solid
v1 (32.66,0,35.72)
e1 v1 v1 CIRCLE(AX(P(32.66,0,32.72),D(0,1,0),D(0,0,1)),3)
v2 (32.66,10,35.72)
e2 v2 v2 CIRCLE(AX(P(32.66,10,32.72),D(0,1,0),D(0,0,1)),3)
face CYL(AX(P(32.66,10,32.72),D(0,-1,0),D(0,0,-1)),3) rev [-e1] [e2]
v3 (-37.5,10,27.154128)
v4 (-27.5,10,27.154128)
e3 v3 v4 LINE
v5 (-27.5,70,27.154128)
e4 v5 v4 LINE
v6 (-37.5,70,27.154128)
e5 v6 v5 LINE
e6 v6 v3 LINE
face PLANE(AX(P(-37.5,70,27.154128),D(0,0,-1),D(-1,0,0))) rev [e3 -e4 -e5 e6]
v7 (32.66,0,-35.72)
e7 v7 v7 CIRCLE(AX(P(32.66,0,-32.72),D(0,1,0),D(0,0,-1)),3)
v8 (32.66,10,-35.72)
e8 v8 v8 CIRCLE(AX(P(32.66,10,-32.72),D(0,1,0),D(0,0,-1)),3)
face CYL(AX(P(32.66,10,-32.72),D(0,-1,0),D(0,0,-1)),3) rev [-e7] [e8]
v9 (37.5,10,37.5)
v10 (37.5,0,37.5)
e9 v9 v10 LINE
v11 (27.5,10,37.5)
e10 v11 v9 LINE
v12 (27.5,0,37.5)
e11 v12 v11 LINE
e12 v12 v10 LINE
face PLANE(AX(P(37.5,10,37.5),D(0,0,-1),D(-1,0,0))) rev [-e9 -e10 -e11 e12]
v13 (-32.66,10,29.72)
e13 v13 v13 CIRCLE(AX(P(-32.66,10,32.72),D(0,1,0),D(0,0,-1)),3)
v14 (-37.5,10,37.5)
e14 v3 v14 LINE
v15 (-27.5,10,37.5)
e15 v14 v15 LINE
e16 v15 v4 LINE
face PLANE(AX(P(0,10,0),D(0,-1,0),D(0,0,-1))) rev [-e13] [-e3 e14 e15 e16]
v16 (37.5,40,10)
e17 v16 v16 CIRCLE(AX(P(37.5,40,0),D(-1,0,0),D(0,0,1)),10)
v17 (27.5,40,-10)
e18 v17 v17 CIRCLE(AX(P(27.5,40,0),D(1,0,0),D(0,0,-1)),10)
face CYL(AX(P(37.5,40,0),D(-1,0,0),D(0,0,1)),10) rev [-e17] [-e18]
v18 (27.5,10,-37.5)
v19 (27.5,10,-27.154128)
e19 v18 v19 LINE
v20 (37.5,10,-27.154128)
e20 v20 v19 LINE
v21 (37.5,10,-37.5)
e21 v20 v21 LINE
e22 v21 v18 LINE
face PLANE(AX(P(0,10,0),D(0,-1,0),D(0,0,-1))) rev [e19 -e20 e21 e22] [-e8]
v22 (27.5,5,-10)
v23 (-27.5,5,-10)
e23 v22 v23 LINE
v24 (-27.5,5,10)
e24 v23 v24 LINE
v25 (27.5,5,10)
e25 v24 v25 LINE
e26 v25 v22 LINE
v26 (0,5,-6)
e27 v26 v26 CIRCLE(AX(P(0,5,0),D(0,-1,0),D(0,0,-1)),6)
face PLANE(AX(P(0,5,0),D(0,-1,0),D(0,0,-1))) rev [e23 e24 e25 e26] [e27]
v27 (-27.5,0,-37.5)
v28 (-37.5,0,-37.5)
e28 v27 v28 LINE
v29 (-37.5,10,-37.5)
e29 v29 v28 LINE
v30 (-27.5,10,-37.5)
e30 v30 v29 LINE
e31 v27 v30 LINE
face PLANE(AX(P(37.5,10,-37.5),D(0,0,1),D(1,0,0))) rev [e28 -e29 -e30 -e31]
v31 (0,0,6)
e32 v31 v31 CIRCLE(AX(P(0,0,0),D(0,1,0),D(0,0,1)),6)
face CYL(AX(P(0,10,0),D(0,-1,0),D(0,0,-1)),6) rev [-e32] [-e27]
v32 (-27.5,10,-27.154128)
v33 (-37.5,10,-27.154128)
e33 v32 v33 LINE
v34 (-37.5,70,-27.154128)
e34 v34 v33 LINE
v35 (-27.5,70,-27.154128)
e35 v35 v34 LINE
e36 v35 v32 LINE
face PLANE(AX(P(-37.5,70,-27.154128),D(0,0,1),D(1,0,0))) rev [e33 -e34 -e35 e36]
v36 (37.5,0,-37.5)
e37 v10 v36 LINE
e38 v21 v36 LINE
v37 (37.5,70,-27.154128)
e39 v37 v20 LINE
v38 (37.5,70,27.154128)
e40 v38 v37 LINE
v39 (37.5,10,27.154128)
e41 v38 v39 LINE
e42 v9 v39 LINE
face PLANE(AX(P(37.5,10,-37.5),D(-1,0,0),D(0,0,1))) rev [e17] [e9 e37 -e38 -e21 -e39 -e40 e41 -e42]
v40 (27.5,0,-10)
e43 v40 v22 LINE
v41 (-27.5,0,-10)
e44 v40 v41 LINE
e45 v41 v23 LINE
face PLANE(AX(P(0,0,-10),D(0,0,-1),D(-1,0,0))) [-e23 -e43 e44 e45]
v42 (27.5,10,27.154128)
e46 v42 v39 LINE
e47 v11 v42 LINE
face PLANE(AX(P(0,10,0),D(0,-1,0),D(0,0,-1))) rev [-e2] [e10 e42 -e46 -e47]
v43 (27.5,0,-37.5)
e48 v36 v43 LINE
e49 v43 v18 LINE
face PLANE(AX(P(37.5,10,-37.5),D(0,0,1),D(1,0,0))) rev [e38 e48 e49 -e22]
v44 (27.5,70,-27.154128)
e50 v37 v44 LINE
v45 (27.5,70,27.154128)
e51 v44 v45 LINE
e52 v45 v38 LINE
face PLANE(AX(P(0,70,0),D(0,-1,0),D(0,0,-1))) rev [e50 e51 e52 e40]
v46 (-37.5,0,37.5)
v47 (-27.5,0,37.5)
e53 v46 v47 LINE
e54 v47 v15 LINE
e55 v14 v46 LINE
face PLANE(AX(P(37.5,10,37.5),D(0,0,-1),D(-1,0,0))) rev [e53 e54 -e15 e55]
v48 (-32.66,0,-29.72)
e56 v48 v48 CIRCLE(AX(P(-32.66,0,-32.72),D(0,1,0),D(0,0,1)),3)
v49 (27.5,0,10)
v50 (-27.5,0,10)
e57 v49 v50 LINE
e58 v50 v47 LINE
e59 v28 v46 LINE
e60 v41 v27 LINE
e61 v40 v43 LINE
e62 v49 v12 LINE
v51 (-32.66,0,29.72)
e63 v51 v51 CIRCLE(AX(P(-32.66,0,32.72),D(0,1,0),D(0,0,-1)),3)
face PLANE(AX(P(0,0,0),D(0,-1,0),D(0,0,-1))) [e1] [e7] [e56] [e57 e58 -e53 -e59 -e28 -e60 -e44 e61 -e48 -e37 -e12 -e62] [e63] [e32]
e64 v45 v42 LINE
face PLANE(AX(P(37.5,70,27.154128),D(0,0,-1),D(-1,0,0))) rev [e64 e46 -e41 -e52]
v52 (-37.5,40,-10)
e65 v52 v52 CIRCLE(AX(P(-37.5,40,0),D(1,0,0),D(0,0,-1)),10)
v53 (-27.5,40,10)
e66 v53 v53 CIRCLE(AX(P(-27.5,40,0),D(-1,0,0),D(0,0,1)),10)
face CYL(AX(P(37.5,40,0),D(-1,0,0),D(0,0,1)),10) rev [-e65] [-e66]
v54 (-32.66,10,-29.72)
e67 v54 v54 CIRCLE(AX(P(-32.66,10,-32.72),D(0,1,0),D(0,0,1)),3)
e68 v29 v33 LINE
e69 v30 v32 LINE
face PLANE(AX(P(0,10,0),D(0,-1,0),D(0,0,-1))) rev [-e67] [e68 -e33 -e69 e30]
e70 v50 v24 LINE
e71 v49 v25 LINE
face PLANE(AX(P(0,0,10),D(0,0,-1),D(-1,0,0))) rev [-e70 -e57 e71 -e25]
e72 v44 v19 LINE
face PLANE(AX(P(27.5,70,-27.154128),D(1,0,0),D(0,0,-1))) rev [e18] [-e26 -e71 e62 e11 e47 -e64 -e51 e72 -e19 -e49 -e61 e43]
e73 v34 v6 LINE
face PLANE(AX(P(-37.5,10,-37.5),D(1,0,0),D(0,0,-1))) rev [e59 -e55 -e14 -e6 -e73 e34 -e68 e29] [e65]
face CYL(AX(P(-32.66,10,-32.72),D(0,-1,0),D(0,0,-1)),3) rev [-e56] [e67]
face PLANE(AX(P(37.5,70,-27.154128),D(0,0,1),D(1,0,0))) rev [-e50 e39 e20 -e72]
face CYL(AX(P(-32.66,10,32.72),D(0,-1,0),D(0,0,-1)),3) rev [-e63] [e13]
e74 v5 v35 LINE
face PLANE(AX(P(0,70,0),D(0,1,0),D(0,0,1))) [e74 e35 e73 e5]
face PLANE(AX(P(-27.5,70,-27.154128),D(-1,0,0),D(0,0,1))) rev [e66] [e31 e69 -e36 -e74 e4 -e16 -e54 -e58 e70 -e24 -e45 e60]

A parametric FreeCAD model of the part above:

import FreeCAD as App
import Part
import Sketcher

V = App.Vector
Q = App.Units.Quantity


def add_polygon(sketch, points):
    """Adds a closed chain of lines whose ends are joined by coincident constraints."""
    first, n = sketch.GeometryCount, len(points)
    for a, b in zip(points, points[1:] + points[:1]):
        sketch.addGeometry(Part.LineSegment(App.Vector(*a, 0), App.Vector(*b, 0)), False)
    for i in range(n):
        sketch.addConstraint(Sketcher.Constraint("Coincident", first + i, 2, first + (i + 1) % n, 1))

doc = App.newDocument("Part")
params = doc.addObject("Spreadsheet::Sheet", "Params")
for row, (alias, value) in enumerate([
    ("sketch1_diameter", "6 mm"),
    ("sketch1_diameter2", "12 mm"),
    ("sketch1_width", "75 mm"),
    ("pad1_length", "10 mm"),
    ("sketch2_width", "10 mm"),
    ("pad2_length", "60 mm"),
    ("sketch3_diameter", "20 mm"),
    ("sketch4_width", "55 mm"),
    ("sketch4_height", "27.5 mm"),
    ("sketch5_width", "55 mm"),
    ("sketch5_height", "20 mm"),
    ("pocket3_length", "5 mm"),
], start=1):
    params.set(f"A{row}", alias)
    params.set(f"B{row}", "=" + value)
    params.setAlias(f"B{row}", alias)

body = doc.addObject("PartDesign::Body", "Body")

sketch1 = doc.addObject("Sketcher::SketchObject", "Sketch")
body.addObject(sketch1)
sketch1.AttachmentSupport = (doc.XZ_Plane, [""])
sketch1.MapMode = "FlatFace"
add_polygon(sketch1, [(-37.5, -37.5), (-37.5, 37.5), (37.5, 37.5), (37.5, -37.5)])
sketch1.addGeometry(Part.Circle(V(-32.7, 32.7, 0), V(0, 0, 1), 3), False)
sketch1.addGeometry(Part.Circle(V(32.7, 32.7, 0), V(0, 0, 1), 3), False)
sketch1.addGeometry(Part.Circle(V(-32.7, -32.7, 0), V(0, 0, 1), 3), False)
sketch1.addGeometry(Part.Circle(V(0, 0, 0), V(0, 0, 1), 6), False)
sketch1.addGeometry(Part.Circle(V(32.7, -32.7, 0), V(0, 0, 1), 3), False)
sketch1.addConstraint(Sketcher.Constraint("Vertical", 0))
sketch1.addConstraint(Sketcher.Constraint("Horizontal", 1))
sketch1.addConstraint(Sketcher.Constraint("Vertical", 2))
sketch1.addConstraint(Sketcher.Constraint("Horizontal", 3))
sketch1.addConstraint(Sketcher.Constraint("Coincident", 7, 3, -1, 1))
sketch1.addConstraint(Sketcher.Constraint("Equal", 4, 5))
sketch1.addConstraint(Sketcher.Constraint("Equal", 5, 6))
sketch1.addConstraint(Sketcher.Constraint("Equal", 6, 8))
sketch1.addConstraint(Sketcher.Constraint("Symmetric", 5, 3, 6, 3, -1, 1))
sketch1.addConstraint(Sketcher.Constraint("Symmetric", 4, 3, 8, 3, -1, 1))
sketch1.addConstraint(Sketcher.Constraint("Symmetric", 0, 2, 2, 2, -1, 1))
sketch1.addConstraint(Sketcher.Constraint("Symmetric", 4, 3, 5, 3, -2))
sketch1.addConstraint(Sketcher.Constraint("Equal", 3, 0))
sketch1.addConstraint(Sketcher.Constraint("Diameter", 4, Q("6 mm")))
sketch1.addConstraint(Sketcher.Constraint("Diameter", 7, Q("12 mm")))
sketch1.addConstraint(Sketcher.Constraint("DistanceX", 1, 1, 1, 2, Q("75 mm")))
sketch1.addConstraint(Sketcher.Constraint("DistanceX", 4, 3, -1, 1, Q("32.66 mm")))
sketch1.addConstraint(Sketcher.Constraint("DistanceY", -1, 1, 4, 3, Q("32.72 mm")))
sketch1.setExpression("Constraints[17]", "Params.sketch1_diameter")
sketch1.setExpression("Constraints[18]", "Params.sketch1_diameter2")
sketch1.setExpression("Constraints[19]", "Params.sketch1_width")
pad1 = doc.addObject("PartDesign::Pad", "Pad")
body.addObject(pad1)
pad1.Profile = sketch1
pad1.setExpression("Length", "Params.pad1_length")
pad1.Reversed = True

sketch2 = doc.addObject("Sketcher::SketchObject", "Sketch001")
body.addObject(sketch2)
sketch2.AttachmentSupport = (doc.XZ_Plane, [""])
sketch2.MapMode = "FlatFace"
sketch2.AttachmentOffset = App.Placement(V(0, 0, -10), App.Rotation())
add_polygon(sketch2, [(-38, -27), (-38, 27), (-28, 27), (-28, -27)])
add_polygon(sketch2, [(28, -27), (28, 27), (38, 27), (38, -27)])
sketch2.addConstraint(Sketcher.Constraint("Vertical", 0))
sketch2.addConstraint(Sketcher.Constraint("Horizontal", 1))
sketch2.addConstraint(Sketcher.Constraint("Vertical", 2))
sketch2.addConstraint(Sketcher.Constraint("Horizontal", 3))
sketch2.addConstraint(Sketcher.Constraint("Vertical", 4))
sketch2.addConstraint(Sketcher.Constraint("Horizontal", 5))
sketch2.addConstraint(Sketcher.Constraint("Vertical", 6))
sketch2.addConstraint(Sketcher.Constraint("Horizontal", 7))
sketch2.addConstraint(Sketcher.Constraint("Symmetric", 2, 2, 4, 2, -1, 1))
sketch2.addConstraint(Sketcher.Constraint("Symmetric", 0, 2, 6, 2, -1, 1))
sketch2.addConstraint(Sketcher.Constraint("Horizontal", 1, 2, 4, 2))
sketch2.addConstraint(Sketcher.Constraint("DistanceX", 1, 1, 1, 2, Q("10 mm")))
sketch2.addConstraint(Sketcher.Constraint("DistanceX", 1, 2, 4, 2, Q("55 mm")))
sketch2.addConstraint(Sketcher.Constraint("DistanceY", 0, 1, 0, 2, Q("54.308256 mm")))
sketch2.setExpression("Constraints[19]", "Params.sketch2_width")
pad2 = doc.addObject("PartDesign::Pad", "Pad001")
body.addObject(pad2)
pad2.Profile = sketch2
pad2.setExpression("Length", "Params.pad2_length")
pad2.Reversed = True

sketch3 = doc.addObject("Sketcher::SketchObject", "Sketch002")
body.addObject(sketch3)
sketch3.AttachmentSupport = (doc.YZ_Plane, [""])
sketch3.MapMode = "FlatFace"
sketch3.AttachmentOffset = App.Placement(V(0, 0, -37.5), App.Rotation())
sketch3.addGeometry(Part.Circle(V(40, 0, 0), V(0, 0, 1), 10), False)
sketch3.addConstraint(Sketcher.Constraint("PointOnObject", 0, 3, -1))
sketch3.addConstraint(Sketcher.Constraint("Diameter", 0, Q("20 mm")))
sketch3.addConstraint(Sketcher.Constraint("DistanceX", -1, 1, 0, 3, Q("40 mm")))
sketch3.setExpression("Constraints[1]", "Params.sketch3_diameter")
pocket1 = doc.addObject("PartDesign::Pocket", "Pocket")
body.addObject(pocket1)
pocket1.Profile = sketch3
pocket1.Type = "ThroughAll"
pocket1.Midplane = True

sketch4 = doc.addObject("Sketcher::SketchObject", "Sketch003")
body.addObject(sketch4)
sketch4.AttachmentSupport = (doc.XZ_Plane, [""])
sketch4.MapMode = "FlatFace"
sketch4.AttachmentOffset = App.Placement(V(0, 0, -10), App.Rotation())
add_polygon(sketch4, [(-28, -10), (28, -10), (28, -38), (-28, -38)])
add_polygon(sketch4, [(28, 10), (-28, 10), (-28, 38), (28, 38)])
sketch4.addConstraint(Sketcher.Constraint("Horizontal", 0))
sketch4.addConstraint(Sketcher.Constraint("Vertical", 1))
sketch4.addConstraint(Sketcher.Constraint("Horizontal", 2))
sketch4.addConstraint(Sketcher.Constraint("Vertical", 3))
sketch4.addConstraint(Sketcher.Constraint("Horizontal", 4))
sketch4.addConstraint(Sketcher.Constraint("Vertical", 5))
sketch4.addConstraint(Sketcher.Constraint("Horizontal", 6))
sketch4.addConstraint(Sketcher.Constraint("Vertical", 7))
sketch4.addConstraint(Sketcher.Constraint("Symmetric", 0, 2, 4, 2, -1, 1))
sketch4.addConstraint(Sketcher.Constraint("Symmetric", 2, 2, 6, 2, -1, 1))
sketch4.addConstraint(Sketcher.Constraint("Vertical", 3, 2, 4, 2))
sketch4.addConstraint(Sketcher.Constraint("DistanceX", 0, 1, 0, 2, Q("55 mm")))
sketch4.addConstraint(Sketcher.Constraint("DistanceY", 1, 2, 1, 1, Q("27.5 mm")))
sketch4.addConstraint(Sketcher.Constraint("DistanceY", 0, 2, -1, 1, Q("10 mm")))
sketch4.setExpression("Constraints[19]", "Params.sketch4_width")
sketch4.setExpression("Constraints[20]", "Params.sketch4_height")
pocket2 = doc.addObject("PartDesign::Pocket", "Pocket001")
body.addObject(pocket2)
pocket2.Profile = sketch4
pocket2.Type = "ThroughAll"
pocket2.Midplane = True

sketch5 = doc.addObject("Sketcher::SketchObject", "Sketch004")
body.addObject(sketch5)
sketch5.AttachmentSupport = (doc.XZ_Plane, [""])
sketch5.MapMode = "FlatFace"
sketch5.AttachmentOffset = App.Placement(V(0, 0, -10), App.Rotation())
add_polygon(sketch5, [(-28, -10), (-28, 10), (28, 10), (28, -10)])
sketch5.addConstraint(Sketcher.Constraint("Vertical", 0))
sketch5.addConstraint(Sketcher.Constraint("Horizontal", 1))
sketch5.addConstraint(Sketcher.Constraint("Vertical", 2))
sketch5.addConstraint(Sketcher.Constraint("Horizontal", 3))
sketch5.addConstraint(Sketcher.Constraint("Symmetric", 0, 2, 2, 2, -1, 1))
sketch5.addConstraint(Sketcher.Constraint("DistanceX", 1, 1, 1, 2, Q("55 mm")))
sketch5.addConstraint(Sketcher.Constraint("DistanceY", 0, 1, 0, 2, Q("20 mm")))
sketch5.setExpression("Constraints[9]", "Params.sketch5_width")
sketch5.setExpression("Constraints[10]", "Params.sketch5_height")
pocket3 = doc.addObject("PartDesign::Pocket", "Pocket002")
body.addObject(pocket3)
pocket3.Profile = sketch5
pocket3.setExpression("Length", "Params.pocket3_length")
pocket3.Reversed = True

doc.recompute()
